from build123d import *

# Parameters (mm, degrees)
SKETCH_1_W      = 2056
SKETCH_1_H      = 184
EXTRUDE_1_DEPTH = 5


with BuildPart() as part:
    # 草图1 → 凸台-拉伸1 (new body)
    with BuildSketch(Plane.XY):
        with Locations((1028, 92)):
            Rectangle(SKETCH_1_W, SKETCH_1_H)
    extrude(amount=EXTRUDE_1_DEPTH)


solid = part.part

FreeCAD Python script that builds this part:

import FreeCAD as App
import Part
import Sketcher


def add_polygon(sketch, points):
    """Adds a closed chain of lines whose ends are joined by coincident constraints."""
    first, n = sketch.GeometryCount, len(points)
    for a, b in zip(points, points[1:] + points[:1]):
        sketch.addGeometry(Part.LineSegment(App.Vector(*a, 0), App.Vector(*b, 0)), False)
    for i in range(n):
        sketch.addConstraint(Sketcher.Constraint("Coincident", first + i, 2, first + (i + 1) % n, 1))

doc = App.newDocument("Part")
params = doc.addObject("Spreadsheet::Sheet", "Params")
for row, (alias, value) in enumerate([
    ("sketch1_width", "2056 mm"),
    ("sketch1_height", "184 mm"),
    ("pad1_length", "5 mm"),
], start=1):
    params.set(f"A{row}", alias)
    params.set(f"B{row}", "=" + value)
    params.setAlias(f"B{row}", alias)

body = doc.addObject("PartDesign::Body", "Body")

# Sketch on XY plane
sketch1 = body.newObject("Sketcher::SketchObject", "Sketch")
sketch1.AttachmentSupport = (doc.getObject("XY_Plane"), [""])
sketch1.MapMode = "FlatFace"
add_polygon(sketch1, [(0, 184), (0, 0), (2056, 0), (2056, 184)])  # lines 0-3
sketch1.addConstraint([
    Sketcher.Constraint("Vertical", 0),
    Sketcher.Constraint("Horizontal", 1),
    Sketcher.Constraint("Vertical", 2),
    Sketcher.Constraint("Horizontal", 3),
    Sketcher.Constraint("Coincident", 0, 2, -1, 1),
    Sketcher.Constraint("DistanceX", 1, 1, 1, 2, 2056.0),
    Sketcher.Constraint("DistanceY", 0, 2, 0, 1, 184.0),
])
sketch1.setExpression("Constraints[9]", "Params.sketch1_width")
sketch1.setExpression("Constraints[10]", "Params.sketch1_height")
pad1 = body.newObject("PartDesign::Pad", "Pad")
pad1.Profile = sketch1
pad1.setExpression("Length", "Params.pad1_length")

doc.recompute()
